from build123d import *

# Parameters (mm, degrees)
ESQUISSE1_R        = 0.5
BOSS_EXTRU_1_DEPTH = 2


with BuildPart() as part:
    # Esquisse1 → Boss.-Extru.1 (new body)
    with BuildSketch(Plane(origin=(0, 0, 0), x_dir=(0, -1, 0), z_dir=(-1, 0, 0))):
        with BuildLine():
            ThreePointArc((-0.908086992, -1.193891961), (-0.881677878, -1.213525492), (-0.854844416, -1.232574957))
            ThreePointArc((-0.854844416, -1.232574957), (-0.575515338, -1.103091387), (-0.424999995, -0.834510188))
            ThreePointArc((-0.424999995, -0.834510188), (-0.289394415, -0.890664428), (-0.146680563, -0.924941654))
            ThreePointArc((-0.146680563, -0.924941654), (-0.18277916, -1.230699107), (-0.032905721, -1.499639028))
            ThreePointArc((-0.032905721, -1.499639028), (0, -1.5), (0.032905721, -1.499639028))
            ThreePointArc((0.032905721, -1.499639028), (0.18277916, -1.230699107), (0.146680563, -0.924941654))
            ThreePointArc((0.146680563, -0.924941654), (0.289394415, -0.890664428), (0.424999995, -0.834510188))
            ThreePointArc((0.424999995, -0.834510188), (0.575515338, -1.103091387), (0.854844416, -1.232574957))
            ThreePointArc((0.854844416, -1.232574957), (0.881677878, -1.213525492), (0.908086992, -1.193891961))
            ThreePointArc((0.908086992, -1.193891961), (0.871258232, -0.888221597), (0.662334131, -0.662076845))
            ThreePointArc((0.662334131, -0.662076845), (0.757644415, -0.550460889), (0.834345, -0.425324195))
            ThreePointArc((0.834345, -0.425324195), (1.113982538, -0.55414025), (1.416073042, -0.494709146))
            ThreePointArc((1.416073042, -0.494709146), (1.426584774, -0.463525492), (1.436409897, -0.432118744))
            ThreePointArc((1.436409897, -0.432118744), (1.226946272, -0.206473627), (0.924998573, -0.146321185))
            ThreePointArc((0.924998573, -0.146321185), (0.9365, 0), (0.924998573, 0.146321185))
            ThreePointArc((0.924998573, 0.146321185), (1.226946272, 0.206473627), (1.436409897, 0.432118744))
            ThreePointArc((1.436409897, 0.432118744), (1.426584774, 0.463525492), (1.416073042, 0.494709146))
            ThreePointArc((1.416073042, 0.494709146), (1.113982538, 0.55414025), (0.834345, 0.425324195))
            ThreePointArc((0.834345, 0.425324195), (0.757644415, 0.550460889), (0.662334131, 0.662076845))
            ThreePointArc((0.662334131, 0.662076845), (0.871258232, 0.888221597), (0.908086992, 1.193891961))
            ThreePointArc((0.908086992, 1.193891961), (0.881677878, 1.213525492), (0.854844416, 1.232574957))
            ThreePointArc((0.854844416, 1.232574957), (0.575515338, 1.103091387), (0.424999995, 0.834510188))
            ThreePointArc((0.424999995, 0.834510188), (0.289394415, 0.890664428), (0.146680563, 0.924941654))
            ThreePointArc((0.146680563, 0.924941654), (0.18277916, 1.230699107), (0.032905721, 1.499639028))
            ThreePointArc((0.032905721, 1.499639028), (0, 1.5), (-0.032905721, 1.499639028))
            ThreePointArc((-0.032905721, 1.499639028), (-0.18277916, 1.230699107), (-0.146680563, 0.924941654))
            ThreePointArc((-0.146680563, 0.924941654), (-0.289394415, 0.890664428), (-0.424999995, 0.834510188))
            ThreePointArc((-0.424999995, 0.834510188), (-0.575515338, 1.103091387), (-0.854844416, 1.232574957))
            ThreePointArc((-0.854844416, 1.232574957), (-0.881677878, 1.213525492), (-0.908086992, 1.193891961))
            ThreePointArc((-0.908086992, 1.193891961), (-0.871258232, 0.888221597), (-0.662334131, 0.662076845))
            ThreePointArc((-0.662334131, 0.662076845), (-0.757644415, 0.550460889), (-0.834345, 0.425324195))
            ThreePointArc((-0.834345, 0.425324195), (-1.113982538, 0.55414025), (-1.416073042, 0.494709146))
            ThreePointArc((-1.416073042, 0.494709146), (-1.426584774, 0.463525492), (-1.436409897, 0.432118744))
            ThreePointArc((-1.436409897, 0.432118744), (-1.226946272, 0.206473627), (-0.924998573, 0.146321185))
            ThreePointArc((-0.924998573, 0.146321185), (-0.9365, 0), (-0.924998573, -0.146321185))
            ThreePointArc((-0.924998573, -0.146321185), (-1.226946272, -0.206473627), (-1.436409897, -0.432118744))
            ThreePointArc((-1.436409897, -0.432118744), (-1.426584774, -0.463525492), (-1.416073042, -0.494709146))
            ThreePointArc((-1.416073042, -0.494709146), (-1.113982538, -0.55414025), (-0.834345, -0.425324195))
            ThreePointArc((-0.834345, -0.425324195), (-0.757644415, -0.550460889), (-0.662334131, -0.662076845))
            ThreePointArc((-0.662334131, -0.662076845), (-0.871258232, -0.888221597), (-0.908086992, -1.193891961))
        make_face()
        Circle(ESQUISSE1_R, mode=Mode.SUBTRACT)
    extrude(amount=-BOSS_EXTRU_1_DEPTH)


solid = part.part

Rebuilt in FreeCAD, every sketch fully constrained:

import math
import FreeCAD as App
import Part
import Sketcher

V = App.Vector

doc = App.newDocument("Part")
body = doc.addObject("PartDesign::Body", "Body")

sketch1 = doc.addObject("Sketcher::SketchObject", "Sketch")
body.addObject(sketch1)
sketch1.AttachmentSupport = (doc.YZ_Plane, [""])
sketch1.MapMode = "FlatFace"
sketch1.addGeometry([
    Part.ArcOfCircle(Part.Circle(V(0, 0, 0), V(0, 0, 1), 1.499999), math.radians(-55.257007), math.radians(-52.742993)),
    Part.ArcOfCircle(Part.Circle(V(0.915247, -0.736237, 0), V(0, 0, 1), 0.5), math.radians(-168.664912), math.radians(-96.9386)),
    Part.ArcOfCircle(Part.Circle(V(0, 0, 0), V(0, 0, 1), 0.9365), math.radians(-80.98887), math.radians(-63.01113)),
    Part.ArcOfCircle(Part.Circle(V(-0.307701, -1.133597, 0), V(0, 0, 1), 0.5), math.radians(-47.0614), math.radians(24.664911)),
    Part.ArcOfCircle(Part.Circle(V(0, 0.000001, 0), V(0, 0, 1), 1.500001), math.radians(-91.257006), math.radians(-88.742994)),
    Part.ArcOfCircle(Part.Circle(V(0.307701, -1.133597, 0), V(0, 0, 1), 0.5), math.radians(155.335089), math.radians(227.0614)),
    Part.ArcOfCircle(Part.Circle(V(0, 0, 0), V(0, 0, 1), 0.9365), math.radians(-116.98887), math.radians(-99.01113)),
    Part.ArcOfCircle(Part.Circle(V(-0.915247, -0.736237, 0), V(0, 0, 1), 0.5), math.radians(-83.0614), math.radians(-11.335088)),
    Part.ArcOfCircle(Part.Circle(V(0, 0, 0), V(0, 0, 1), 1.499999), math.radians(-127.257007), math.radians(-124.742993)),
    Part.ArcOfCircle(Part.Circle(V(-0.417376, -1.097962, 0), V(0, 0, 1), 0.5), math.radians(119.335088), math.radians(191.0614)),
    Part.ArcOfCircle(Part.Circle(V(0, 0, 0), V(0, 0, 1), 0.9365), math.radians(-152.988869), math.radians(-135.01113)),
    Part.ArcOfCircle(Part.Circle(V(-1.1732, -0.057659, 0), V(0, 0, 1), 0.5), math.radians(-119.061399), math.radians(-47.335089)),
    Part.ArcOfCircle(Part.Circle(V(0.000001, 0, 0), V(0, 0, 1), 1.500002), math.radians(-163.257005), math.radians(-160.742994)),
    Part.ArcOfCircle(Part.Circle(V(-0.98303, -0.642942, 0), V(0, 0, 1), 0.5), math.radians(83.335088), math.radians(155.0614)),
    Part.ArcOfCircle(Part.Circle(V(0, 0, 0), V(0, 0, 1), 0.9365), math.radians(171.01113), math.radians(188.98887)),
    Part.ArcOfCircle(Part.Circle(V(-0.98303, 0.642942, 0), V(0, 0, 1), 0.5), math.radians(-155.0614), math.radians(-83.335088)),
    Part.ArcOfCircle(Part.Circle(V(0.000001, 0, 0), V(0, 0, 1), 1.500002), math.radians(160.742994), math.radians(163.257005)),
    Part.ArcOfCircle(Part.Circle(V(-1.1732, 0.057659, 0), V(0, 0, 1), 0.5), math.radians(47.335089), math.radians(119.061399)),
    Part.ArcOfCircle(Part.Circle(V(0, 0, 0), V(0, 0, 1), 0.9365), math.radians(135.01113), math.radians(152.988869)),
    Part.ArcOfCircle(Part.Circle(V(-0.417376, 1.097962, 0), V(0, 0, 1), 0.5), math.radians(168.9386), math.radians(240.664912)),
    Part.ArcOfCircle(Part.Circle(V(0, 0, 0), V(0, 0, 1), 1.499999), math.radians(124.742993), math.radians(127.257007)),
    Part.ArcOfCircle(Part.Circle(V(-0.915247, 0.736237, 0), V(0, 0, 1), 0.5), math.radians(11.335088), math.radians(83.0614)),
    Part.ArcOfCircle(Part.Circle(V(0, 0, 0), V(0, 0, 1), 0.9365), math.radians(99.01113), math.radians(116.98887)),
    Part.ArcOfCircle(Part.Circle(V(0.307701, 1.133597, 0), V(0, 0, 1), 0.5), math.radians(132.9386), math.radians(204.664911)),
    Part.ArcOfCircle(Part.Circle(V(0, -0.000001, 0), V(0, 0, 1), 1.500001), math.radians(88.742994), math.radians(91.257006)),
    Part.ArcOfCircle(Part.Circle(V(-0.307701, 1.133597, 0), V(0, 0, 1), 0.5), math.radians(-24.664911), math.radians(47.0614)),
    Part.ArcOfCircle(Part.Circle(V(0, 0, 0), V(0, 0, 1), 0.9365), math.radians(63.01113), math.radians(80.98887)),
    Part.ArcOfCircle(Part.Circle(V(0.915247, 0.736237, 0), V(0, 0, 1), 0.5), math.radians(96.9386), math.radians(168.664912)),
    Part.ArcOfCircle(Part.Circle(V(0, 0, 0), V(0, 0, 1), 1.499999), math.radians(52.742993), math.radians(55.257007)),
    Part.ArcOfCircle(Part.Circle(V(0.417376, 1.097962, 0), V(0, 0, 1), 0.5), math.radians(-60.664912), math.radians(11.0614)),
    Part.ArcOfCircle(Part.Circle(V(0, 0, 0), V(0, 0, 1), 0.9365), math.radians(27.011131), math.radians(44.98887)),
    Part.ArcOfCircle(Part.Circle(V(1.1732, 0.057659, 0), V(0, 0, 1), 0.5), math.radians(60.938601), math.radians(132.664911)),
    Part.ArcOfCircle(Part.Circle(V(-0.000001, 0, 0), V(0, 0, 1), 1.500002), math.radians(16.742995), math.radians(19.257006)),
    Part.ArcOfCircle(Part.Circle(V(0.98303, 0.642942, 0), V(0, 0, 1), 0.5), math.radians(-96.664912), math.radians(-24.9386)),
    Part.ArcOfCircle(Part.Circle(V(0, 0, 0), V(0, 0, 1), 0.9365), math.radians(-8.98887), math.radians(8.98887)),
    Part.ArcOfCircle(Part.Circle(V(0.98303, -0.642942, 0), V(0, 0, 1), 0.5), math.radians(24.9386), math.radians(96.664912)),
    Part.ArcOfCircle(Part.Circle(V(-0.000001, 0, 0), V(0, 0, 1), 1.500002), math.radians(-19.257006), math.radians(-16.742995)),
    Part.ArcOfCircle(Part.Circle(V(1.1732, -0.057659, 0), V(0, 0, 1), 0.5), math.radians(-132.664911), math.radians(-60.938601)),
    Part.ArcOfCircle(Part.Circle(V(0, 0, 0), V(0, 0, 1), 0.9365), math.radians(-44.98887), math.radians(-27.011131)),
    Part.ArcOfCircle(Part.Circle(V(0.417376, -1.097962, 0), V(0, 0, 1), 0.5), math.radians(-11.0614), math.radians(60.664912)),
    Part.Circle(V(0, 0, 0), V(0, 0, 1), 0.5),
], False)
sketch1.addConstraint([
    Sketcher.Constraint("Coincident", 0, 1, 1, 2),
    Sketcher.Constraint("Coincident", 1, 1, 2, 2),
    Sketcher.Constraint("Coincident", 2, 1, 3, 2),
    Sketcher.Constraint("Coincident", 3, 1, 4, 2),
    Sketcher.Constraint("Coincident", 4, 1, 5, 2),
    Sketcher.Constraint("Coincident", 5, 1, 6, 2),
    Sketcher.Constraint("Coincident", 6, 1, 7, 2),
    Sketcher.Constraint("Coincident", 7, 1, 8, 2),
    Sketcher.Constraint("Coincident", 8, 1, 9, 2),
    Sketcher.Constraint("Coincident", 9, 1, 10, 2),
    Sketcher.Constraint("Coincident", 10, 1, 11, 2),
    Sketcher.Constraint("Coincident", 11, 1, 12, 2),
    Sketcher.Constraint("Coincident", 12, 1, 13, 2),
    Sketcher.Constraint("Coincident", 13, 1, 14, 2),
    Sketcher.Constraint("Coincident", 14, 1, 15, 2),
    Sketcher.Constraint("Coincident", 15, 1, 16, 2),
    Sketcher.Constraint("Coincident", 16, 1, 17, 2),
    Sketcher.Constraint("Coincident", 17, 1, 18, 2),
    Sketcher.Constraint("Coincident", 18, 1, 19, 2),
    Sketcher.Constraint("Coincident", 19, 1, 20, 2),
    Sketcher.Constraint("Coincident", 20, 1, 21, 2),
    Sketcher.Constraint("Coincident", 21, 1, 22, 2),
    Sketcher.Constraint("Coincident", 22, 1, 23, 2),
    Sketcher.Constraint("Coincident", 23, 1, 24, 2),
    Sketcher.Constraint("Coincident", 24, 1, 25, 2),
    Sketcher.Constraint("Coincident", 25, 1, 26, 2),
    Sketcher.Constraint("Coincident", 26, 1, 27, 2),
    Sketcher.Constraint("Coincident", 27, 1, 28, 2),
    Sketcher.Constraint("Coincident", 28, 1, 29, 2),
    Sketcher.Constraint("Coincident", 29, 1, 30, 2),
    Sketcher.Constraint("Coincident", 30, 1, 31, 2),
    Sketcher.Constraint("Coincident", 31, 1, 32, 2),
    Sketcher.Constraint("Coincident", 32, 1, 33, 2),
    Sketcher.Constraint("Coincident", 33, 1, 34, 2),
    Sketcher.Constraint("Coincident", 34, 1, 35, 2),
    Sketcher.Constraint("Coincident", 35, 1, 36, 2),
    Sketcher.Constraint("Coincident", 36, 1, 37, 2),
    Sketcher.Constraint("Coincident", 37, 1, 38, 2),
    Sketcher.Constraint("Coincident", 38, 1, 39, 2),
    Sketcher.Constraint("Coincident", 39, 1, 0, 2),
    Sketcher.Constraint("Coincident", 0, 3, -1, 1),
    Sketcher.Constraint("Coincident", 2, 3, -1, 1),
    Sketcher.Constraint("Coincident", 4, 3, -1, 1),
    Sketcher.Constraint("Coincident", 6, 3, -1, 1),
    Sketcher.Constraint("Coincident", 8, 3, -1, 1),
    Sketcher.Constraint("Coincident", 10, 3, -1, 1),
    Sketcher.Constraint("Coincident", 12, 3, -1, 1),
    Sketcher.Constraint("Coincident", 14, 3, -1, 1),
    Sketcher.Constraint("Coincident", 16, 3, -1, 1),
    Sketcher.Constraint("Coincident", 18, 3, -1, 1),
    Sketcher.Constraint("Coincident", 20, 3, -1, 1),
    Sketcher.Constraint("Coincident", 22, 3, -1, 1),
    Sketcher.Constraint("Coincident", 24, 3, -1, 1),
    Sketcher.Constraint("Coincident", 26, 3, -1, 1),
    Sketcher.Constraint("Coincident", 28, 3, -1, 1),
    Sketcher.Constraint("Coincident", 30, 3, -1, 1),
    Sketcher.Constraint("Coincident", 32, 3, -1, 1),
    Sketcher.Constraint("Coincident", 34, 3, -1, 1),
    Sketcher.Constraint("Coincident", 36, 3, -1, 1),
    Sketcher.Constraint("Coincident", 38, 3, -1, 1),
    Sketcher.Constraint("Coincident", 40, 3, -1, 1),
    Sketcher.Constraint("Equal", 1, 3),
    Sketcher.Constraint("Equal", 0, 4),
    Sketcher.Constraint("Equal", 3, 5),
    Sketcher.Constraint("Equal", 2, 6),
    Sketcher.Constraint("Equal", 5, 7),
    Sketcher.Constraint("Equal", 4, 8),
    Sketcher.Constraint("Equal", 7, 9),
    Sketcher.Constraint("Equal", 6, 10),
    Sketcher.Constraint("Equal", 9, 11),
    Sketcher.Constraint("Equal", 4, 12),
    Sketcher.Constraint("Equal", 11, 13),
    Sketcher.Constraint("Equal", 10, 14),
    Sketcher.Constraint("Equal", 13, 15),
    Sketcher.Constraint("Equal", 12, 16),
    Sketcher.Constraint("Equal", 15, 17),
    Sketcher.Constraint("Equal", 14, 18),
    Sketcher.Constraint("Equal", 17, 19),
    Sketcher.Constraint("Equal", 8, 20),
    Sketcher.Constraint("Equal", 19, 21),
    Sketcher.Constraint("Equal", 18, 22),
    Sketcher.Constraint("Equal", 21, 23),
    Sketcher.Constraint("Equal", 20, 24),
    Sketcher.Constraint("Equal", 23, 25),
    Sketcher.Constraint("Equal", 22, 26),
    Sketcher.Constraint("Equal", 25, 27),
    Sketcher.Constraint("Equal", 24, 28),
    Sketcher.Constraint("Equal", 27, 29),
    Sketcher.Constraint("Equal", 26, 30),
    Sketcher.Constraint("Equal", 29, 31),
    Sketcher.Constraint("Equal", 24, 32),
    Sketcher.Constraint("Equal", 31, 33),
    Sketcher.Constraint("Equal", 30, 34),
    Sketcher.Constraint("Equal", 33, 35),
    Sketcher.Constraint("Equal", 32, 36),
    Sketcher.Constraint("Equal", 35, 37),
    Sketcher.Constraint("Equal", 34, 38),
    Sketcher.Constraint("Equal", 37, 39),
    Sketcher.Constraint("Equal", 39, 40),
    Sketcher.Constraint("Symmetric", 1, 3, 21, 3, -1, 1),
    Sketcher.Constraint("Symmetric", 3, 3, 23, 3, -1, 1),
    Sketcher.Constraint("Symmetric", 5, 3, 25, 3, -1, 1),
    Sketcher.Constraint("Symmetric", 7, 3, 27, 3, -1, 1),
    Sketcher.Constraint("Symmetric", 9, 3, 29, 3, -1, 1),
    Sketcher.Constraint("Symmetric", 11, 3, 31, 3, -1, 1),
    Sketcher.Constraint("Symmetric", 13, 3, 33, 3, -1, 1),
    Sketcher.Constraint("Symmetric", 15, 3, 35, 3, -1, 1),
    Sketcher.Constraint("Symmetric", 17, 3, 37, 3, -1, 1),
    Sketcher.Constraint("Symmetric", 19, 3, 39, 3, -1, 1),
    Sketcher.Constraint("Symmetric", 3, 3, 5, 3, -2),
    Sketcher.Constraint("Symmetric", 1, 3, 7, 3, -2),
    Sketcher.Constraint("Symmetric", 19, 3, 29, 3, -2),
    Sketcher.Constraint("Symmetric", 17, 3, 31, 3, -2),
    Sketcher.Constraint("Symmetric", 15, 3, 33, 3, -2),
    Sketcher.Constraint("Diameter", 40, 1.0),
    Sketcher.Constraint("Radius", 0, 1.499999),
    Sketcher.Constraint("Radius", 2, 0.9365),
    Sketcher.Constraint("DistanceX", -1, 1, 1, 1, 0.425),
    Sketcher.Constraint("DistanceX", 13, 1, -1, 1, 0.924999),
    Sketcher.Constraint("DistanceX", 3, 3, -1, 1, 0.307701),
    Sketcher.Constraint("DistanceX", 11, 3, -1, 1, 1.1732),
    Sketcher.Constraint("DistanceY", 9, 3, -1, 1, 1.097962),
    Sketcher.Constraint("DistanceY", 11, 3, -1, 1, 0.057659),
    Sketcher.Constraint("DistanceX", 13, 3, -1, 1, 0.98303),
    Sketcher.Constraint("DistanceX", -1, 1, 2, 1, 0.146681),
    Sketcher.Constraint("DistanceY", 8, 1, -1, 1, 1.193892),
    Sketcher.Constraint("DistanceX", -1, 1, 1, 3, 0.915247),
])
pad1 = doc.addObject("PartDesign::Pad", "Pad")
body.addObject(pad1)
pad1.Profile = sketch1
pad1.Length = 2

doc.recompute()
